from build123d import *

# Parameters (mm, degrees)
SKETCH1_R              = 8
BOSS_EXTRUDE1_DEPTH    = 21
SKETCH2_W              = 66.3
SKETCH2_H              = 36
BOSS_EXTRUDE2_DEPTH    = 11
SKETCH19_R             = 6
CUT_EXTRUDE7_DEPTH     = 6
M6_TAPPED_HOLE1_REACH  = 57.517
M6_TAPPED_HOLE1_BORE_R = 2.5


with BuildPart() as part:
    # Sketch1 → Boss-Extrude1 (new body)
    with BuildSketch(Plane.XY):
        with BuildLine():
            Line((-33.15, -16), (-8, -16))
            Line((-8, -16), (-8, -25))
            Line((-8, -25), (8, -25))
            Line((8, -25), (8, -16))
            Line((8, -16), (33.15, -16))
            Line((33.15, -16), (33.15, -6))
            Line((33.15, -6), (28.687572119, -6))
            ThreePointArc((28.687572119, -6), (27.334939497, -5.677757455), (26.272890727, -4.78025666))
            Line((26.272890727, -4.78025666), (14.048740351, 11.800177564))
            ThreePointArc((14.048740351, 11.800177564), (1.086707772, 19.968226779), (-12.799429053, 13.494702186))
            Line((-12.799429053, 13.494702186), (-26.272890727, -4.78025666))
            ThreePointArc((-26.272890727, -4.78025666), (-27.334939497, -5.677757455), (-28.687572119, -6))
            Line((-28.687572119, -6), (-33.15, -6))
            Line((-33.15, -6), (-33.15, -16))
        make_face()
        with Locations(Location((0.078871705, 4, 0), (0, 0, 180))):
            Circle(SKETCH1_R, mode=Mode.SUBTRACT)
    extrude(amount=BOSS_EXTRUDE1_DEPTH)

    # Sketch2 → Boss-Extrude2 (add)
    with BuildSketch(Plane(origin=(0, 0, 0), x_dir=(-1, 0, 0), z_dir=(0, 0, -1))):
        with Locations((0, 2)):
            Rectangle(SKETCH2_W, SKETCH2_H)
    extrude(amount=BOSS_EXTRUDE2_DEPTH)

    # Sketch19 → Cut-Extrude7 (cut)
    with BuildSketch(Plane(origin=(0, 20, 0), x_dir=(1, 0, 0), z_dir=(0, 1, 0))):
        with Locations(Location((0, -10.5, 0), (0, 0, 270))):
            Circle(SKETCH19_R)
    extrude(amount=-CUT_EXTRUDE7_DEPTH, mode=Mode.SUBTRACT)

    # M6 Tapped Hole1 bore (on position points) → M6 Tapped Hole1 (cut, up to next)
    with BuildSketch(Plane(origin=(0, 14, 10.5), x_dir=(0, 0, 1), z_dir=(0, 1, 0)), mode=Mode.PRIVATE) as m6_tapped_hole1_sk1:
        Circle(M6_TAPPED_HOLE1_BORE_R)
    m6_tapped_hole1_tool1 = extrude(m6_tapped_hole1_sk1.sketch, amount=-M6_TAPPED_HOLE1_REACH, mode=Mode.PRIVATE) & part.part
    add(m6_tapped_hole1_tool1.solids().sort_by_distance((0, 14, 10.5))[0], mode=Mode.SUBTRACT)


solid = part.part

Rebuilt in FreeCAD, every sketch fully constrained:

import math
import FreeCAD as App
import Part
import Sketcher
from FreeCAD import Vector
Q = App.Units.Quantity

doc = App.newDocument("Part")
params = doc.addObject("Spreadsheet::Sheet", "Params")
for row, (alias, value) in enumerate([
    ("sketch1_diameter", "16 mm"),
    ("sketch1_radius", "3 mm"),
    ("sketch1_radius2", "16 mm"),
    ("sketch1_width", "16 mm"),
    ("sketch1_height", "9 mm"),
    ("pad1_length", "21 mm"),
    ("sketch2_height", "36 mm"),
    ("sketch2_width", "66.3 mm"),
    ("pad2_length", "11 mm"),
    ("sketch3_diameter", "12 mm"),
    ("pocket1_length", "6 mm"),
    ("sketch4_diameter", "5 mm"),
], start=1):
    params.set(f"A{row}", alias)
    params.set(f"B{row}", "=" + value)
    params.setAlias(f"B{row}", alias)

body = doc.addObject("PartDesign::Body", "Body")

# Sketch on XY plane
sketch1 = doc.addObject("Sketcher::SketchObject", "Sketch")
body.addObject(sketch1)
sketch1.AttachmentSupport = (doc.XY_Plane, [""])
sketch1.MapMode = "FlatFace"
sketch1.addGeometry([
    Part.LineSegment(Vector(-33.1, -16, 0), Vector(-8, -16, 0)),  # 0
    Part.LineSegment(Vector(-8, -16, 0), Vector(-8, -25, 0)),  # 1
    Part.LineSegment(Vector(-8, -25, 0), Vector(8, -25, 0)),  # 2
    Part.LineSegment(Vector(8, -25, 0), Vector(8, -16, 0)),  # 3
    Part.LineSegment(Vector(8, -16, 0), Vector(33.1, -16, 0)),  # 4
    Part.LineSegment(Vector(33.1, -16, 0), Vector(33.1, -6, 0)),  # 5
    Part.LineSegment(Vector(33.1, -6, 0), Vector(28.7, -6, 0)),  # 6
    Part.ArcOfCircle(Part.Circle(Vector(28.7, -3, 0), Vector(0, 0, 1), 3), math.radians(-144), math.radians(-90)),  # 7
    Part.LineSegment(Vector(26.3, -4.8, 0), Vector(14, 11.8, 0)),  # 8
    Part.ArcOfCircle(Part.Circle(Vector(0.1, 4, 0), Vector(0, 0, 1), 16), math.radians(29), math.radians(144)),  # 9
    Part.LineSegment(Vector(-12.8, 13.5, 0), Vector(-26.3, -4.8, 0)),  # 10
    Part.ArcOfCircle(Part.Circle(Vector(-28.7, -3, 0), Vector(0, 0, 1), 3), math.radians(-90), math.radians(-36)),  # 11
    Part.LineSegment(Vector(-28.7, -6, 0), Vector(-33.1, -6, 0)),  # 12
    Part.LineSegment(Vector(-33.1, -6, 0), Vector(-33.1, -16, 0)),  # 13
    Part.Circle(Vector(0.1, 4, 0), Vector(0, 0, 1), 8),  # 14
], False)
sketch1.addConstraint([
    Sketcher.Constraint("Coincident", 0, 2, 1, 1),
    Sketcher.Constraint("Coincident", 1, 2, 2, 1),
    Sketcher.Constraint("Coincident", 2, 2, 3, 1),
    Sketcher.Constraint("Coincident", 3, 2, 4, 1),
    Sketcher.Constraint("Coincident", 4, 2, 5, 1),
    Sketcher.Constraint("Coincident", 5, 2, 6, 1),
    Sketcher.Constraint("Tangent", 6, 2, 7, 2),
    Sketcher.Constraint("Tangent", 7, 1, 8, 1),
    Sketcher.Constraint("Coincident", 8, 2, 9, 1),
    Sketcher.Constraint("Tangent", 9, 2, 10, 1),
    Sketcher.Constraint("Tangent", 10, 2, 11, 2),
    Sketcher.Constraint("Tangent", 11, 1, 12, 1),
    Sketcher.Constraint("Coincident", 12, 2, 13, 1),
    Sketcher.Constraint("Coincident", 13, 2, 0, 1),
    Sketcher.Constraint("Horizontal", 0),
    Sketcher.Constraint("Vertical", 1),
    Sketcher.Constraint("Horizontal", 2),
    Sketcher.Constraint("Vertical", 3),
    Sketcher.Constraint("Horizontal", 4),
    Sketcher.Constraint("Vertical", 5),
    Sketcher.Constraint("Horizontal", 6),
    Sketcher.Constraint("Horizontal", 12),
    Sketcher.Constraint("Vertical", 13),
    Sketcher.Constraint("Coincident", 14, 3, 9, 3),
    Sketcher.Constraint("Equal", 7, 11),
    Sketcher.Constraint("Symmetric", 7, 3, 11, 3, -2),
    Sketcher.Constraint("Symmetric", 0, 2, 3, 2, -2),
    Sketcher.Constraint("Horizontal", 7, 1, 10, 2),
    Sketcher.Constraint("Equal", 0, 4),
    Sketcher.Constraint("Diameter", 14, 16.0),
    Sketcher.Constraint("Radius", 7, 3.0),
    Sketcher.Constraint("Radius", 9, 16.0),
    Sketcher.Constraint("DistanceX", 2, 1, 2, 2, 16.0),
    Sketcher.Constraint("DistanceY", 1, 2, 1, 1, 9.0),
    Sketcher.Constraint("DistanceY", 5, 1, 5, 2, 10.0),
    Sketcher.Constraint("DistanceY", 7, 3, -1, 1, 3.0),
    Sketcher.Constraint("DistanceY", -1, 1, 9, 3, 4.0),
    Sketcher.Constraint("Angle", 8, Q("126.4 deg")),
    Sketcher.Constraint("DistanceX", 0, 1, 0, 2, 25.15),
    Sketcher.Constraint("DistanceX", 9, 3, 7, 3, 28.6087),
])
sketch1.setExpression("Constraints[29]", "Params.sketch1_diameter")
sketch1.setExpression("Constraints[30]", "Params.sketch1_radius")
sketch1.setExpression("Constraints[31]", "Params.sketch1_radius2")
sketch1.setExpression("Constraints[32]", "Params.sketch1_width")
sketch1.setExpression("Constraints[33]", "Params.sketch1_height")
pad1 = doc.addObject("PartDesign::Pad", "Pad")
body.addObject(pad1)
pad1.Profile = sketch1
pad1.setExpression("Length", "Params.pad1_length")

# Sketch on XY plane
sketch2 = doc.addObject("Sketcher::SketchObject", "Sketch001")
body.addObject(sketch2)
sketch2.AttachmentSupport = (doc.XY_Plane, [""])
sketch2.MapMode = "FlatFace"
sketch2.addGeometry([
    Part.LineSegment(Vector(33, 20, 0), Vector(33, -16, 0)),
    Part.LineSegment(Vector(33, -16, 0), Vector(-33, -16, 0)),
    Part.LineSegment(Vector(-33, -16, 0), Vector(-33, 20, 0)),
    Part.LineSegment(Vector(-33, 20, 0), Vector(33, 20, 0)),
], False)
sketch2.addConstraint([
    Sketcher.Constraint("Coincident", 0, 2, 1, 1),
    Sketcher.Constraint("Coincident", 1, 2, 2, 1),
    Sketcher.Constraint("Coincident", 2, 2, 3, 1),
    Sketcher.Constraint("Coincident", 3, 2, 0, 1),
    Sketcher.Constraint("Vertical", 0),
    Sketcher.Constraint("Horizontal", 1),
    Sketcher.Constraint("Vertical", 2),
    Sketcher.Constraint("Horizontal", 3),
    Sketcher.Constraint("DistanceY", 0, 2, 0, 1, 36.0),
    Sketcher.Constraint("DistanceX", 1, 2, 1, 1, 66.3),
    Sketcher.Constraint("DistanceY", 0, 2, -1, 1, 16.0),
    Sketcher.Constraint("DistanceX", -1, 1, 0, 2, 33.15),
])
sketch2.setExpression("Constraints[8]", "Params.sketch2_height")
sketch2.setExpression("Constraints[9]", "Params.sketch2_width")
pad2 = doc.addObject("PartDesign::Pad", "Pad001")
body.addObject(pad2)
pad2.Profile = sketch2
pad2.setExpression("Length", "Params.pad2_length")
pad2.Reversed = True

# Sketch on XZ plane
sketch3 = doc.addObject("Sketcher::SketchObject", "Sketch002")
body.addObject(sketch3)
sketch3.AttachmentSupport = (doc.XZ_Plane, [""])
sketch3.MapMode = "FlatFace"
sketch3.AttachmentOffset = App.Placement(Vector(0, 0, -20), App.Rotation())
sketch3.addGeometry(Part.Circle(Vector(0, 10, 0), Vector(0, 0, 1), 6), False)
sketch3.addConstraint([
    Sketcher.Constraint("PointOnObject", 0, 3, -2),
    Sketcher.Constraint("Diameter", 0, 12.0),
    Sketcher.Constraint("DistanceY", -1, 1, 0, 3, 10.5),
])
sketch3.setExpression("Constraints[1]", "Params.sketch3_diameter")
pocket1 = doc.addObject("PartDesign::Pocket", "Pocket")
body.addObject(pocket1)
pocket1.Profile = sketch3
pocket1.setExpression("Length", "Params.pocket1_length")
pocket1.Reversed = True

# Sketch on XZ plane
sketch4 = doc.addObject("Sketcher::SketchObject", "Sketch003")
body.addObject(sketch4)
sketch4.AttachmentSupport = (doc.XZ_Plane, [""])
sketch4.MapMode = "FlatFace"
sketch4.AttachmentOffset = App.Placement(Vector(0, 0, -14), App.Rotation())
sketch4.addGeometry(Part.Circle(Vector(0, 10.5, 0), Vector(0, 0, 1), 2.5), False)
sketch4.addConstraint([
    Sketcher.Constraint("PointOnObject", 0, 3, -2),
    Sketcher.Constraint("Diameter", 0, 5.0),
    Sketcher.Constraint("DistanceY", -1, 1, 0, 3, 10.5),
])
sketch4.setExpression("Constraints[1]", "Params.sketch4_diameter")
pocket2 = doc.addObject("PartDesign::Pocket", "Pocket001")
body.addObject(pocket2)
pocket2.Profile = sketch4
pocket2.Type = "UpToFirst"
pocket2.Reversed = True

doc.recompute()
